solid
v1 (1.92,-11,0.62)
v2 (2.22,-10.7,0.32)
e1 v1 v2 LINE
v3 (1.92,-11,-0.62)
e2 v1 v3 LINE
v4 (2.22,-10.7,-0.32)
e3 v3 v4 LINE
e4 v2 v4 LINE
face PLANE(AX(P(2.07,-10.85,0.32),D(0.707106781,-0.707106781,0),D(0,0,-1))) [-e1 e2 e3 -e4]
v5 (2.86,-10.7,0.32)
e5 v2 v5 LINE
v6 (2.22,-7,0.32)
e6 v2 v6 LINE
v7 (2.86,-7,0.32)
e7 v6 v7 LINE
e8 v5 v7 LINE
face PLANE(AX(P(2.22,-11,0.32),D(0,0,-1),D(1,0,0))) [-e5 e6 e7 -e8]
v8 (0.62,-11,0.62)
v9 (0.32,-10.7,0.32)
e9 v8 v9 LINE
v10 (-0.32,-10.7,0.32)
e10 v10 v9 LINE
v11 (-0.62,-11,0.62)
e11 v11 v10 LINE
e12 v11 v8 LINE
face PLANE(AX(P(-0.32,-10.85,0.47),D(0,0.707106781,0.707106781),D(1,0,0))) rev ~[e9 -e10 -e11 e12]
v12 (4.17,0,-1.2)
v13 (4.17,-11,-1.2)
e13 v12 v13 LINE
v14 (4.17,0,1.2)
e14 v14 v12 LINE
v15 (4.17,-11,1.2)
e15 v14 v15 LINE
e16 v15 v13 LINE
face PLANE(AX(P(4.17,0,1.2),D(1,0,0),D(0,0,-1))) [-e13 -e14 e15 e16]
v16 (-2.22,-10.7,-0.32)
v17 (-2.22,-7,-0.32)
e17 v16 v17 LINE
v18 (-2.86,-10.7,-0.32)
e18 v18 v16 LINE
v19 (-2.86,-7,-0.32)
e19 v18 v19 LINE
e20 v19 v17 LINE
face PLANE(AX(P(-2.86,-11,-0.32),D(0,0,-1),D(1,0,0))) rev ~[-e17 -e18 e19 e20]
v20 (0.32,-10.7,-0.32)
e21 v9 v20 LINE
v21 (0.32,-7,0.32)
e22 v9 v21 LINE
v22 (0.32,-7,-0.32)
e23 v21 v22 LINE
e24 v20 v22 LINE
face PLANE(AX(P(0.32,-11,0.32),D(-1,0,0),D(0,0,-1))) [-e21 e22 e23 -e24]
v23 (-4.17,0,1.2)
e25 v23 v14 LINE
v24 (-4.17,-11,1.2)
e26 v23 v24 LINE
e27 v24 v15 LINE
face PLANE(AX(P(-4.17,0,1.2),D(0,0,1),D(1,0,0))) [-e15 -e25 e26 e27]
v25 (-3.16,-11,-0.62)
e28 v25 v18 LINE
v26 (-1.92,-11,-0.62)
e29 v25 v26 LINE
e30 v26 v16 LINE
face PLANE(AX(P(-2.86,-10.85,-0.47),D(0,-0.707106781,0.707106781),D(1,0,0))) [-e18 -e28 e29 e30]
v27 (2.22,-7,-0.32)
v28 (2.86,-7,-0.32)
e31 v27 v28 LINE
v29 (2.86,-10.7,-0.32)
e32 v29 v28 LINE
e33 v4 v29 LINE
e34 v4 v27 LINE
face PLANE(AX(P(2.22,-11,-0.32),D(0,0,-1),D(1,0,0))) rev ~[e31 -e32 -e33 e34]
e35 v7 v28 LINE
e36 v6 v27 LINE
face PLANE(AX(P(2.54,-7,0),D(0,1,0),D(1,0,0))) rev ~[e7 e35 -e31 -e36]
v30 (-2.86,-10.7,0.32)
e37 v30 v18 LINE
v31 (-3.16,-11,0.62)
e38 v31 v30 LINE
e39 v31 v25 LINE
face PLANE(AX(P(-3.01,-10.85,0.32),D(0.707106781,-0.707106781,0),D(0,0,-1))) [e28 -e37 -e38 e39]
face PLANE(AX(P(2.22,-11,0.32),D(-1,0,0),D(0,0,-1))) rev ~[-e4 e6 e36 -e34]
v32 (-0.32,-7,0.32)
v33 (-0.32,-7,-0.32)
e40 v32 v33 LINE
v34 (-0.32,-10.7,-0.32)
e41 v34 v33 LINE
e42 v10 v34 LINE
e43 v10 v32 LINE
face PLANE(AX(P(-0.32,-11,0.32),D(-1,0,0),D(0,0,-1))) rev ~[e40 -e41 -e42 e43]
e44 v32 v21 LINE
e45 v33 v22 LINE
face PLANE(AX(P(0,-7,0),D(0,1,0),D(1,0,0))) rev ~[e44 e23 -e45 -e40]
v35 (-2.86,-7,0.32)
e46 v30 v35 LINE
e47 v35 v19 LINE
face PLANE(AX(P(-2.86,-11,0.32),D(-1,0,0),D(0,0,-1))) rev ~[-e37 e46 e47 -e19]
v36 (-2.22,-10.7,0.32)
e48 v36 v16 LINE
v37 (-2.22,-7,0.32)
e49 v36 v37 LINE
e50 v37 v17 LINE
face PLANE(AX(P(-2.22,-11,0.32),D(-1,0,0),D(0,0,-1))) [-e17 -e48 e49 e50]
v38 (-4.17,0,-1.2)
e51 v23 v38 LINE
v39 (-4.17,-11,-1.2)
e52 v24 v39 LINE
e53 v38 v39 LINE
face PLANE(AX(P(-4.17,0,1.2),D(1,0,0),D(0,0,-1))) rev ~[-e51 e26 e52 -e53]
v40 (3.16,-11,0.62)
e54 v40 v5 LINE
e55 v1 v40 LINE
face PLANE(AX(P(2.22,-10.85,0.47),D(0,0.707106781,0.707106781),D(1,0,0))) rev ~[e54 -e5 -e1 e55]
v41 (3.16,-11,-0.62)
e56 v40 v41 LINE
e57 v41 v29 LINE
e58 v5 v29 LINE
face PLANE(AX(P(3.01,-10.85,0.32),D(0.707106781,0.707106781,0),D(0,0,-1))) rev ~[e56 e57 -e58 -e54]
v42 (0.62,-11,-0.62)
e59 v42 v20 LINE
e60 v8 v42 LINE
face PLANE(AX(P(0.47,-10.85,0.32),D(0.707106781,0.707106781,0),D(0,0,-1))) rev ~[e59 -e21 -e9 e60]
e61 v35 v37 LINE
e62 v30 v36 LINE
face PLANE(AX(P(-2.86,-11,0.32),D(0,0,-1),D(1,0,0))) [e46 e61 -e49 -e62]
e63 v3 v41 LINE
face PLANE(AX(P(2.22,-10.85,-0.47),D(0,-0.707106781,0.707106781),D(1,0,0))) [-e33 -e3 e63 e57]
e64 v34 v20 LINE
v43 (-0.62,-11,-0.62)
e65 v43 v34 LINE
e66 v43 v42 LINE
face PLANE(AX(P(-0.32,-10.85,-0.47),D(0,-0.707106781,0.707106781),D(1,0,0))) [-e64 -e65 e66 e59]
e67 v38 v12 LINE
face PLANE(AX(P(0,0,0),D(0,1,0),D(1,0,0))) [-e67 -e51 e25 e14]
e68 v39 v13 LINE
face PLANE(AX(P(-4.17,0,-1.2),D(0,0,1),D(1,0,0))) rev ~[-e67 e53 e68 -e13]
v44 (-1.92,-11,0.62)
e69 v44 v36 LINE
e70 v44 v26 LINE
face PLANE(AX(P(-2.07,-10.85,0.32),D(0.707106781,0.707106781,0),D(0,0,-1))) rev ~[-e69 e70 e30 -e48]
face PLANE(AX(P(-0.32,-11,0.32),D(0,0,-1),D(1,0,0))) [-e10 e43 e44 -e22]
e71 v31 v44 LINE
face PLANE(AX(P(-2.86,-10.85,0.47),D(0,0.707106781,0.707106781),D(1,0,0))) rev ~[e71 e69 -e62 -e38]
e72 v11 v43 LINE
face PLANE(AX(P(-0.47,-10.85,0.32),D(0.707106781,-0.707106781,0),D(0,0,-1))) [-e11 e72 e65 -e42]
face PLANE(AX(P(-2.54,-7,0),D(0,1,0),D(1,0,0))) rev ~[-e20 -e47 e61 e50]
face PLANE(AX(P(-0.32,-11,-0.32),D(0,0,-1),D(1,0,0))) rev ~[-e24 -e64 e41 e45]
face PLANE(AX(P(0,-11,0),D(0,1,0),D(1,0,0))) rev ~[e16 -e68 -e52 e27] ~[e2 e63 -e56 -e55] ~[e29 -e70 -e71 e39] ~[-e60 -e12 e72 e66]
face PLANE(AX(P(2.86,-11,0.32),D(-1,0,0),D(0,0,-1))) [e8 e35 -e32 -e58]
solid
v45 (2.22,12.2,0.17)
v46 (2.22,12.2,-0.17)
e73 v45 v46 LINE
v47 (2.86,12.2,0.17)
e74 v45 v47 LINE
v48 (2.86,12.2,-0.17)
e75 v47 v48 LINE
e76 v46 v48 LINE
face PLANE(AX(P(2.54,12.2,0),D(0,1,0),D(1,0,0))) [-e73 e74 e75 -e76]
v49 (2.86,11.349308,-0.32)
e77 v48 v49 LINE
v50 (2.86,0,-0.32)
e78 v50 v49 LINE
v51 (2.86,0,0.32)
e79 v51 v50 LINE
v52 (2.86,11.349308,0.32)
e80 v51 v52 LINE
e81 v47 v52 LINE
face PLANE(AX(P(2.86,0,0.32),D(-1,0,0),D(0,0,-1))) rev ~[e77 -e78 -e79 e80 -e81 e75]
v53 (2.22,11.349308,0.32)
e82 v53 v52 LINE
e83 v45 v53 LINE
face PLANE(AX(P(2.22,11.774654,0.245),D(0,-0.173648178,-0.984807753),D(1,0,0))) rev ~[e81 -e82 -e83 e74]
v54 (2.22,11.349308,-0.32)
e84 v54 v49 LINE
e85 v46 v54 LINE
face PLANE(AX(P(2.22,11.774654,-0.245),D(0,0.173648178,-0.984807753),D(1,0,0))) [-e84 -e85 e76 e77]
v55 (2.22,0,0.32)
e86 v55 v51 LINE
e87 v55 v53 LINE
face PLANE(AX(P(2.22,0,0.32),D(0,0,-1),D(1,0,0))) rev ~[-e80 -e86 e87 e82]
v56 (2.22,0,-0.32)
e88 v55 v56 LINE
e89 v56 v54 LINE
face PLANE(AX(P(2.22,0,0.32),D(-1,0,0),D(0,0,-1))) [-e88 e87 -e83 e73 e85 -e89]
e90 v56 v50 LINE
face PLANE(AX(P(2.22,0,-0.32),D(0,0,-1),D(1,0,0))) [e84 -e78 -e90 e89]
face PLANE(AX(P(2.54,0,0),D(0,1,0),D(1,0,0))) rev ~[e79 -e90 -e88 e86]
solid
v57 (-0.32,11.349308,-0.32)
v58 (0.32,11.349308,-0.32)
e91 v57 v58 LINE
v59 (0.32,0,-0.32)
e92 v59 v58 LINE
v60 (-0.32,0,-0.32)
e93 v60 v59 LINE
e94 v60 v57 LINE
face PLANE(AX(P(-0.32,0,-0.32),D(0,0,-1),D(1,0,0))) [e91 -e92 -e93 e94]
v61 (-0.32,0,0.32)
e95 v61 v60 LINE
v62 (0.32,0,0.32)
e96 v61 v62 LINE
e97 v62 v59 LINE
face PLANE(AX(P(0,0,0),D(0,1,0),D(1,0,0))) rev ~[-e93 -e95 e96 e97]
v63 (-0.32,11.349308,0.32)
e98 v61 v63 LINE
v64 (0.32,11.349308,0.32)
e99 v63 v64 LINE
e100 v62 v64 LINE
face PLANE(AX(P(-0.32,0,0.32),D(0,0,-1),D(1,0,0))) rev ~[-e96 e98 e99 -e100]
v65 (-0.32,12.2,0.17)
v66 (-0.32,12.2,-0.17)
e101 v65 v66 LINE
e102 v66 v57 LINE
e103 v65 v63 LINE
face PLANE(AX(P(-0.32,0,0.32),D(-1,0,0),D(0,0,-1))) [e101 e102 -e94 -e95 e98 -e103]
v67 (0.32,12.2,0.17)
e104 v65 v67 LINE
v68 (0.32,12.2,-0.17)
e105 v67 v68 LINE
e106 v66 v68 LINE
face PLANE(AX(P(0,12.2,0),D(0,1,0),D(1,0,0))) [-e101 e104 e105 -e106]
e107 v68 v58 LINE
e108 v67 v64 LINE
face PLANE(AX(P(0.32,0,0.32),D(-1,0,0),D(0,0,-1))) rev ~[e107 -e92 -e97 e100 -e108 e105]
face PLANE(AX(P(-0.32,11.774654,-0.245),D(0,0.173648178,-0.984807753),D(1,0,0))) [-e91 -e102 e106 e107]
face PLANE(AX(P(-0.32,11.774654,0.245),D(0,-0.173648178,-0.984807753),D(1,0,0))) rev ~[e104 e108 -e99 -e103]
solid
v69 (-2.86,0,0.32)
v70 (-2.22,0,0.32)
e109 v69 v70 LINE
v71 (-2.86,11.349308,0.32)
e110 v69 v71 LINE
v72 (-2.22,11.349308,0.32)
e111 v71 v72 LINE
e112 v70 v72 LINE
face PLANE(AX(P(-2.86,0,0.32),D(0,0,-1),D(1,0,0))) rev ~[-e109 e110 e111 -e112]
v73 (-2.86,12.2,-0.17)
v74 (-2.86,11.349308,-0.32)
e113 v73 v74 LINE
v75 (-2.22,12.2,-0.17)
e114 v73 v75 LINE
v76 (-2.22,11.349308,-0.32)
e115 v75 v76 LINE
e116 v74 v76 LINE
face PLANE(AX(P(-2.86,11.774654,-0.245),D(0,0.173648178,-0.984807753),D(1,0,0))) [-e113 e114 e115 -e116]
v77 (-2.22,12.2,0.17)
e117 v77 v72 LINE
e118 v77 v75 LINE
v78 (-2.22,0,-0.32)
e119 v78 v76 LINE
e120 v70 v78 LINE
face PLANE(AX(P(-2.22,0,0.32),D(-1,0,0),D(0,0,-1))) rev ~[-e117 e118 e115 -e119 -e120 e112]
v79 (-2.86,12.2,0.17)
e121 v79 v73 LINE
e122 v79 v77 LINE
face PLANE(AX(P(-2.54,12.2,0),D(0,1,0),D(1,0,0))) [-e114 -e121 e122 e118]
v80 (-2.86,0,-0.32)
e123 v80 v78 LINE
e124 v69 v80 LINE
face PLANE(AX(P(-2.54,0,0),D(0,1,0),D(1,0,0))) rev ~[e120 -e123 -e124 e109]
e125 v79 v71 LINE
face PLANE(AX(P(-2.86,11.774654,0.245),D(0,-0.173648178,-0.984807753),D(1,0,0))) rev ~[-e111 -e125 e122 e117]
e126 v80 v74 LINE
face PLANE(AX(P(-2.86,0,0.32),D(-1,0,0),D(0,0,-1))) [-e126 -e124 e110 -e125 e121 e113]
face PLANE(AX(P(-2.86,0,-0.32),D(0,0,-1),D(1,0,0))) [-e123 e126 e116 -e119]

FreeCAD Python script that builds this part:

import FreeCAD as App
import Part
import Sketcher

V = App.Vector
Q = App.Units.Quantity


def edges_at(feature, points):
    """Names of the edges that pass closest to the given points."""
    edges = feature.Shape.Edges
    near = lambda p: min(range(len(edges)), key=lambda i: edges[i].distToShape(Part.Vertex(*p))[0])
    return sorted({f"Edge{near(p) + 1}" for p in points})

doc = App.newDocument("Part")
params = doc.addObject("Spreadsheet::Sheet", "Params")
for row, (alias, value) in enumerate([
    ("sketch1_height", "2.4 mm"),
    ("sketch1_width", "8.34 mm"),
    ("pad1_length", "11 mm"),
    ("sketch2_width", "0.64 mm"),
    ("pocket1_length", "4 mm"),
    ("chamfer_size", "0.3 mm"),
    ("sketch3_width", "0.64 mm"),
    ("pad2_length", "12.2 mm"),
    ("chamfer2_size", "0.15 mm"),
    ("chamfer2_size2", "0.850692 mm"),
    ("sketch4_width", "0.64 mm"),
    ("pad3_length", "12.2 mm"),
    ("chamfer3_size", "0.15 mm"),
    ("chamfer3_size2", "0.850692 mm"),
    ("sketch5_width", "0.64 mm"),
    ("pad4_length", "12.2 mm"),
    ("chamfer4_size", "0.15 mm"),
    ("chamfer4_size2", "0.850692 mm"),
], start=1):
    params.set(f"A{row}", alias)
    params.set(f"B{row}", "=" + value)
    params.setAlias(f"B{row}", alias)

body = doc.addObject("PartDesign::Body", "Body")

# Sketch on XZ plane
sketch1 = body.newObject("Sketcher::SketchObject", "Sketch")
sketch1.AttachmentSupport = (doc.getObject("XZ_Plane"), [""])
sketch1.MapMode = "FlatFace"
sketch1.addGeometry([
    Part.LineSegment(V(-4.17, -1.2, 0), V(-4.17, 1.2, 0)),
    Part.LineSegment(V(-4.17, 1.2, 0), V(4.17, 1.2, 0)),
    Part.LineSegment(V(4.17, 1.2, 0), V(4.17, -1.2, 0)),
    Part.LineSegment(V(4.17, -1.2, 0), V(-4.17, -1.2, 0)),
], False)
sketch1.addConstraint([
    Sketcher.Constraint("Coincident", 0, 2, 1, 1),
    Sketcher.Constraint("Coincident", 1, 2, 2, 1),
    Sketcher.Constraint("Coincident", 2, 2, 3, 1),
    Sketcher.Constraint("Coincident", 3, 2, 0, 1),
    Sketcher.Constraint("Vertical", 0),
    Sketcher.Constraint("Horizontal", 1),
    Sketcher.Constraint("Vertical", 2),
    Sketcher.Constraint("Horizontal", 3),
    Sketcher.Constraint("Symmetric", 0, 2, 2, 2, -1, 1),
    Sketcher.Constraint("DistanceY", 0, 1, 0, 2, Q("2.4 mm")),
    Sketcher.Constraint("DistanceX", 1, 1, 1, 2, Q("8.34 mm")),
])
sketch1.setExpression("Constraints[9]", "Params.sketch1_height")
sketch1.setExpression("Constraints[10]", "Params.sketch1_width")
pad1 = body.newObject("PartDesign::Pad", "Pad")
pad1.Profile = sketch1
pad1.setExpression("Length", "Params.pad1_length")

# Sketch on XZ plane
sketch2 = body.newObject("Sketcher::SketchObject", "Sketch001")
sketch2.AttachmentSupport = (doc.getObject("XZ_Plane"), [""])
sketch2.MapMode = "FlatFace"
sketch2.AttachmentOffset = App.Placement(V(0, 0, 11), App.Rotation())
sketch2.addGeometry([
    Part.LineSegment(V(-0.32, -0.32, 0), V(-0.32, 0.32, 0)),  # 0
    Part.LineSegment(V(-0.32, 0.32, 0), V(0.32, 0.32, 0)),  # 1
    Part.LineSegment(V(0.32, 0.32, 0), V(0.32, -0.32, 0)),  # 2
    Part.LineSegment(V(0.32, -0.32, 0), V(-0.32, -0.32, 0)),  # 3
    Part.LineSegment(V(-2.86, -0.32, 0), V(-2.86, 0.32, 0)),  # 4
    Part.LineSegment(V(-2.86, 0.32, 0), V(-2.22, 0.32, 0)),  # 5
    Part.LineSegment(V(-2.22, 0.32, 0), V(-2.22, -0.32, 0)),  # 6
    Part.LineSegment(V(-2.22, -0.32, 0), V(-2.86, -0.32, 0)),  # 7
    Part.LineSegment(V(2.22, -0.32, 0), V(2.22, 0.32, 0)),  # 8
    Part.LineSegment(V(2.22, 0.32, 0), V(2.86, 0.32, 0)),  # 9
    Part.LineSegment(V(2.86, 0.32, 0), V(2.86, -0.32, 0)),  # 10
    Part.LineSegment(V(2.86, -0.32, 0), V(2.22, -0.32, 0)),  # 11
], False)
sketch2.addConstraint([
    Sketcher.Constraint("Coincident", 0, 2, 1, 1),
    Sketcher.Constraint("Coincident", 1, 2, 2, 1),
    Sketcher.Constraint("Coincident", 2, 2, 3, 1),
    Sketcher.Constraint("Coincident", 3, 2, 0, 1),
    Sketcher.Constraint("Coincident", 4, 2, 5, 1),
    Sketcher.Constraint("Coincident", 5, 2, 6, 1),
    Sketcher.Constraint("Coincident", 6, 2, 7, 1),
    Sketcher.Constraint("Coincident", 7, 2, 4, 1),
    Sketcher.Constraint("Coincident", 8, 2, 9, 1),
    Sketcher.Constraint("Coincident", 9, 2, 10, 1),
    Sketcher.Constraint("Coincident", 10, 2, 11, 1),
    Sketcher.Constraint("Coincident", 11, 2, 8, 1),
    Sketcher.Constraint("Vertical", 0),
    Sketcher.Constraint("Horizontal", 1),
    Sketcher.Constraint("Vertical", 2),
    Sketcher.Constraint("Horizontal", 3),
    Sketcher.Constraint("Vertical", 4),
    Sketcher.Constraint("Horizontal", 5),
    Sketcher.Constraint("Vertical", 6),
    Sketcher.Constraint("Horizontal", 7),
    Sketcher.Constraint("Vertical", 8),
    Sketcher.Constraint("Horizontal", 9),
    Sketcher.Constraint("Vertical", 10),
    Sketcher.Constraint("Horizontal", 11),
    Sketcher.Constraint("Symmetric", 0, 2, 2, 2, -1, 1),
    Sketcher.Constraint("Symmetric", 6, 2, 8, 2, -1, 1),
    Sketcher.Constraint("Symmetric", 4, 2, 10, 2, -1, 1),
    Sketcher.Constraint("Horizontal", 1, 2, 4, 2),
    Sketcher.Constraint("Horizontal", 3, 2, 6, 2),
    Sketcher.Constraint("Equal", 3, 5),
    Sketcher.Constraint("Equal", 11, 0),
    Sketcher.Constraint("DistanceX", 1, 1, 1, 2, Q("0.64 mm")),
    Sketcher.Constraint("DistanceX", 5, 2, 0, 2, Q("1.9 mm")),
])
sketch2.setExpression("Constraints[31]", "Params.sketch2_width")
pocket1 = body.newObject("PartDesign::Pocket", "Pocket")
pocket1.Profile = sketch2
pocket1.setExpression("Length", "Params.pocket1_length")
doc.recompute()

chamfer = body.newObject("PartDesign::Chamfer", "Chamfer")
chamfer.Base = (pocket1, edges_at(pocket1, [
    (-0.32, -11, 0),
    (0, -11, 0.32),
    (0.32, -11, 0),
    (0, -11, -0.32),
    (-2.86, -11, 0),
    (-2.54, -11, 0.32),
    (-2.22, -11, 0),
    (-2.54, -11, -0.32),
    (2.54, -11, -0.32),
    (2.22, -11, 0),
    (2.54, -11, 0.32),
    (2.86, -11, 0),
]))
chamfer.setExpression("Size", "Params.chamfer_size")
body2 = doc.addObject("PartDesign::Body", "Body001")

# Sketch on XZ plane
sketch3 = body2.newObject("Sketcher::SketchObject", "Sketch002")
sketch3.AttachmentSupport = (doc.getObject("XZ_Plane001"), [""])
sketch3.MapMode = "FlatFace"
sketch3.addGeometry([
    Part.LineSegment(V(-0.32, -0.32, 0), V(-0.32, 0.32, 0)),
    Part.LineSegment(V(-0.32, 0.32, 0), V(0.32, 0.32, 0)),
    Part.LineSegment(V(0.32, 0.32, 0), V(0.32, -0.32, 0)),
    Part.LineSegment(V(0.32, -0.32, 0), V(-0.32, -0.32, 0)),
], False)
sketch3.addConstraint([
    Sketcher.Constraint("Coincident", 0, 2, 1, 1),
    Sketcher.Constraint("Coincident", 1, 2, 2, 1),
    Sketcher.Constraint("Coincident", 2, 2, 3, 1),
    Sketcher.Constraint("Coincident", 3, 2, 0, 1),
    Sketcher.Constraint("Vertical", 0),
    Sketcher.Constraint("Horizontal", 1),
    Sketcher.Constraint("Vertical", 2),
    Sketcher.Constraint("Horizontal", 3),
    Sketcher.Constraint("Symmetric", 0, 2, 2, 2, -1, 1),
    Sketcher.Constraint("Equal", 3, 0),
    Sketcher.Constraint("DistanceX", 1, 1, 1, 2, Q("0.64 mm")),
])
sketch3.setExpression("Constraints[10]", "Params.sketch3_width")
pad2 = body2.newObject("PartDesign::Pad", "Pad001")
pad2.Profile = sketch3
pad2.setExpression("Length", "Params.pad2_length")
pad2.Reversed = True
doc.recompute()

chamfer2 = body2.newObject("PartDesign::Chamfer", "Chamfer001")
chamfer2.Base = (pad2, edges_at(pad2, [(0, 12.2, -0.32), (0, 12.2, 0.32)]))
chamfer2.ChamferType = "Two distances"
chamfer2.setExpression("Size", "Params.chamfer2_size")
chamfer2.setExpression("Size2", "Params.chamfer2_size2")
chamfer2.FlipDirection = True
body3 = doc.addObject("PartDesign::Body", "Body002")

# Sketch on XZ plane
sketch4 = body3.newObject("Sketcher::SketchObject", "Sketch003")
sketch4.AttachmentSupport = (doc.getObject("XZ_Plane002"), [""])
sketch4.MapMode = "FlatFace"
sketch4.addGeometry([
    Part.LineSegment(V(-2.86, -0.32, 0), V(-2.86, 0.32, 0)),
    Part.LineSegment(V(-2.86, 0.32, 0), V(-2.22, 0.32, 0)),
    Part.LineSegment(V(-2.22, 0.32, 0), V(-2.22, -0.32, 0)),
    Part.LineSegment(V(-2.22, -0.32, 0), V(-2.86, -0.32, 0)),
], False)
sketch4.addConstraint([
    Sketcher.Constraint("Coincident", 0, 2, 1, 1),
    Sketcher.Constraint("Coincident", 1, 2, 2, 1),
    Sketcher.Constraint("Coincident", 2, 2, 3, 1),
    Sketcher.Constraint("Coincident", 3, 2, 0, 1),
    Sketcher.Constraint("Vertical", 0),
    Sketcher.Constraint("Horizontal", 1),
    Sketcher.Constraint("Vertical", 2),
    Sketcher.Constraint("Horizontal", 3),
    Sketcher.Constraint("Equal", 3, 0),
    Sketcher.Constraint("DistanceX", 1, 1, 1, 2, Q("0.64 mm")),
    Sketcher.Constraint("DistanceX", 0, 2, -1, 1, Q("2.86 mm")),
    Sketcher.Constraint("DistanceY", -1, 1, 0, 2, Q("0.32 mm")),
])
sketch4.setExpression("Constraints[9]", "Params.sketch4_width")
pad3 = body3.newObject("PartDesign::Pad", "Pad002")
pad3.Profile = sketch4
pad3.setExpression("Length", "Params.pad3_length")
pad3.Reversed = True
doc.recompute()

chamfer3 = body3.newObject("PartDesign::Chamfer", "Chamfer002")
chamfer3.Base = (pad3, edges_at(pad3, [(-2.54, 12.2, -0.32), (-2.54, 12.2, 0.32)]))
chamfer3.ChamferType = "Two distances"
chamfer3.setExpression("Size", "Params.chamfer3_size")
chamfer3.setExpression("Size2", "Params.chamfer3_size2")
chamfer3.FlipDirection = True
body4 = doc.addObject("PartDesign::Body", "Body003")

# Sketch on XZ plane
sketch5 = body4.newObject("Sketcher::SketchObject", "Sketch004")
sketch5.AttachmentSupport = (doc.getObject("XZ_Plane003"), [""])
sketch5.MapMode = "FlatFace"
sketch5.addGeometry([
    Part.LineSegment(V(2.22, -0.32, 0), V(2.22, 0.32, 0)),
    Part.LineSegment(V(2.22, 0.32, 0), V(2.86, 0.32, 0)),
    Part.LineSegment(V(2.86, 0.32, 0), V(2.86, -0.32, 0)),
    Part.LineSegment(V(2.86, -0.32, 0), V(2.22, -0.32, 0)),
], False)
sketch5.addConstraint([
    Sketcher.Constraint("Coincident", 0, 2, 1, 1),
    Sketcher.Constraint("Coincident", 1, 2, 2, 1),
    Sketcher.Constraint("Coincident", 2, 2, 3, 1),
    Sketcher.Constraint("Coincident", 3, 2, 0, 1),
    Sketcher.Constraint("Vertical", 0),
    Sketcher.Constraint("Horizontal", 1),
    Sketcher.Constraint("Vertical", 2),
    Sketcher.Constraint("Horizontal", 3),
    Sketcher.Constraint("Equal", 3, 0),
    Sketcher.Constraint("DistanceX", 1, 1, 1, 2, Q("0.64 mm")),
    Sketcher.Constraint("DistanceX", -1, 1, 0, 2, Q("2.22 mm")),
    Sketcher.Constraint("DistanceY", -1, 1, 0, 2, Q("0.32 mm")),
])
sketch5.setExpression("Constraints[9]", "Params.sketch5_width")
pad4 = body4.newObject("PartDesign::Pad", "Pad003")
pad4.Profile = sketch5
pad4.setExpression("Length", "Params.pad4_length")
pad4.Reversed = True
doc.recompute()

chamfer4 = body4.newObject("PartDesign::Chamfer", "Chamfer003")
chamfer4.Base = (pad4, edges_at(pad4, [(2.54, 12.2, 0.32), (2.54, 12.2, -0.32)]))
chamfer4.ChamferType = "Two distances"
chamfer4.setExpression("Size", "Params.chamfer4_size")
chamfer4.setExpression("Size2", "Params.chamfer4_size2")
chamfer4.FlipDirection = True

doc.recompute()
